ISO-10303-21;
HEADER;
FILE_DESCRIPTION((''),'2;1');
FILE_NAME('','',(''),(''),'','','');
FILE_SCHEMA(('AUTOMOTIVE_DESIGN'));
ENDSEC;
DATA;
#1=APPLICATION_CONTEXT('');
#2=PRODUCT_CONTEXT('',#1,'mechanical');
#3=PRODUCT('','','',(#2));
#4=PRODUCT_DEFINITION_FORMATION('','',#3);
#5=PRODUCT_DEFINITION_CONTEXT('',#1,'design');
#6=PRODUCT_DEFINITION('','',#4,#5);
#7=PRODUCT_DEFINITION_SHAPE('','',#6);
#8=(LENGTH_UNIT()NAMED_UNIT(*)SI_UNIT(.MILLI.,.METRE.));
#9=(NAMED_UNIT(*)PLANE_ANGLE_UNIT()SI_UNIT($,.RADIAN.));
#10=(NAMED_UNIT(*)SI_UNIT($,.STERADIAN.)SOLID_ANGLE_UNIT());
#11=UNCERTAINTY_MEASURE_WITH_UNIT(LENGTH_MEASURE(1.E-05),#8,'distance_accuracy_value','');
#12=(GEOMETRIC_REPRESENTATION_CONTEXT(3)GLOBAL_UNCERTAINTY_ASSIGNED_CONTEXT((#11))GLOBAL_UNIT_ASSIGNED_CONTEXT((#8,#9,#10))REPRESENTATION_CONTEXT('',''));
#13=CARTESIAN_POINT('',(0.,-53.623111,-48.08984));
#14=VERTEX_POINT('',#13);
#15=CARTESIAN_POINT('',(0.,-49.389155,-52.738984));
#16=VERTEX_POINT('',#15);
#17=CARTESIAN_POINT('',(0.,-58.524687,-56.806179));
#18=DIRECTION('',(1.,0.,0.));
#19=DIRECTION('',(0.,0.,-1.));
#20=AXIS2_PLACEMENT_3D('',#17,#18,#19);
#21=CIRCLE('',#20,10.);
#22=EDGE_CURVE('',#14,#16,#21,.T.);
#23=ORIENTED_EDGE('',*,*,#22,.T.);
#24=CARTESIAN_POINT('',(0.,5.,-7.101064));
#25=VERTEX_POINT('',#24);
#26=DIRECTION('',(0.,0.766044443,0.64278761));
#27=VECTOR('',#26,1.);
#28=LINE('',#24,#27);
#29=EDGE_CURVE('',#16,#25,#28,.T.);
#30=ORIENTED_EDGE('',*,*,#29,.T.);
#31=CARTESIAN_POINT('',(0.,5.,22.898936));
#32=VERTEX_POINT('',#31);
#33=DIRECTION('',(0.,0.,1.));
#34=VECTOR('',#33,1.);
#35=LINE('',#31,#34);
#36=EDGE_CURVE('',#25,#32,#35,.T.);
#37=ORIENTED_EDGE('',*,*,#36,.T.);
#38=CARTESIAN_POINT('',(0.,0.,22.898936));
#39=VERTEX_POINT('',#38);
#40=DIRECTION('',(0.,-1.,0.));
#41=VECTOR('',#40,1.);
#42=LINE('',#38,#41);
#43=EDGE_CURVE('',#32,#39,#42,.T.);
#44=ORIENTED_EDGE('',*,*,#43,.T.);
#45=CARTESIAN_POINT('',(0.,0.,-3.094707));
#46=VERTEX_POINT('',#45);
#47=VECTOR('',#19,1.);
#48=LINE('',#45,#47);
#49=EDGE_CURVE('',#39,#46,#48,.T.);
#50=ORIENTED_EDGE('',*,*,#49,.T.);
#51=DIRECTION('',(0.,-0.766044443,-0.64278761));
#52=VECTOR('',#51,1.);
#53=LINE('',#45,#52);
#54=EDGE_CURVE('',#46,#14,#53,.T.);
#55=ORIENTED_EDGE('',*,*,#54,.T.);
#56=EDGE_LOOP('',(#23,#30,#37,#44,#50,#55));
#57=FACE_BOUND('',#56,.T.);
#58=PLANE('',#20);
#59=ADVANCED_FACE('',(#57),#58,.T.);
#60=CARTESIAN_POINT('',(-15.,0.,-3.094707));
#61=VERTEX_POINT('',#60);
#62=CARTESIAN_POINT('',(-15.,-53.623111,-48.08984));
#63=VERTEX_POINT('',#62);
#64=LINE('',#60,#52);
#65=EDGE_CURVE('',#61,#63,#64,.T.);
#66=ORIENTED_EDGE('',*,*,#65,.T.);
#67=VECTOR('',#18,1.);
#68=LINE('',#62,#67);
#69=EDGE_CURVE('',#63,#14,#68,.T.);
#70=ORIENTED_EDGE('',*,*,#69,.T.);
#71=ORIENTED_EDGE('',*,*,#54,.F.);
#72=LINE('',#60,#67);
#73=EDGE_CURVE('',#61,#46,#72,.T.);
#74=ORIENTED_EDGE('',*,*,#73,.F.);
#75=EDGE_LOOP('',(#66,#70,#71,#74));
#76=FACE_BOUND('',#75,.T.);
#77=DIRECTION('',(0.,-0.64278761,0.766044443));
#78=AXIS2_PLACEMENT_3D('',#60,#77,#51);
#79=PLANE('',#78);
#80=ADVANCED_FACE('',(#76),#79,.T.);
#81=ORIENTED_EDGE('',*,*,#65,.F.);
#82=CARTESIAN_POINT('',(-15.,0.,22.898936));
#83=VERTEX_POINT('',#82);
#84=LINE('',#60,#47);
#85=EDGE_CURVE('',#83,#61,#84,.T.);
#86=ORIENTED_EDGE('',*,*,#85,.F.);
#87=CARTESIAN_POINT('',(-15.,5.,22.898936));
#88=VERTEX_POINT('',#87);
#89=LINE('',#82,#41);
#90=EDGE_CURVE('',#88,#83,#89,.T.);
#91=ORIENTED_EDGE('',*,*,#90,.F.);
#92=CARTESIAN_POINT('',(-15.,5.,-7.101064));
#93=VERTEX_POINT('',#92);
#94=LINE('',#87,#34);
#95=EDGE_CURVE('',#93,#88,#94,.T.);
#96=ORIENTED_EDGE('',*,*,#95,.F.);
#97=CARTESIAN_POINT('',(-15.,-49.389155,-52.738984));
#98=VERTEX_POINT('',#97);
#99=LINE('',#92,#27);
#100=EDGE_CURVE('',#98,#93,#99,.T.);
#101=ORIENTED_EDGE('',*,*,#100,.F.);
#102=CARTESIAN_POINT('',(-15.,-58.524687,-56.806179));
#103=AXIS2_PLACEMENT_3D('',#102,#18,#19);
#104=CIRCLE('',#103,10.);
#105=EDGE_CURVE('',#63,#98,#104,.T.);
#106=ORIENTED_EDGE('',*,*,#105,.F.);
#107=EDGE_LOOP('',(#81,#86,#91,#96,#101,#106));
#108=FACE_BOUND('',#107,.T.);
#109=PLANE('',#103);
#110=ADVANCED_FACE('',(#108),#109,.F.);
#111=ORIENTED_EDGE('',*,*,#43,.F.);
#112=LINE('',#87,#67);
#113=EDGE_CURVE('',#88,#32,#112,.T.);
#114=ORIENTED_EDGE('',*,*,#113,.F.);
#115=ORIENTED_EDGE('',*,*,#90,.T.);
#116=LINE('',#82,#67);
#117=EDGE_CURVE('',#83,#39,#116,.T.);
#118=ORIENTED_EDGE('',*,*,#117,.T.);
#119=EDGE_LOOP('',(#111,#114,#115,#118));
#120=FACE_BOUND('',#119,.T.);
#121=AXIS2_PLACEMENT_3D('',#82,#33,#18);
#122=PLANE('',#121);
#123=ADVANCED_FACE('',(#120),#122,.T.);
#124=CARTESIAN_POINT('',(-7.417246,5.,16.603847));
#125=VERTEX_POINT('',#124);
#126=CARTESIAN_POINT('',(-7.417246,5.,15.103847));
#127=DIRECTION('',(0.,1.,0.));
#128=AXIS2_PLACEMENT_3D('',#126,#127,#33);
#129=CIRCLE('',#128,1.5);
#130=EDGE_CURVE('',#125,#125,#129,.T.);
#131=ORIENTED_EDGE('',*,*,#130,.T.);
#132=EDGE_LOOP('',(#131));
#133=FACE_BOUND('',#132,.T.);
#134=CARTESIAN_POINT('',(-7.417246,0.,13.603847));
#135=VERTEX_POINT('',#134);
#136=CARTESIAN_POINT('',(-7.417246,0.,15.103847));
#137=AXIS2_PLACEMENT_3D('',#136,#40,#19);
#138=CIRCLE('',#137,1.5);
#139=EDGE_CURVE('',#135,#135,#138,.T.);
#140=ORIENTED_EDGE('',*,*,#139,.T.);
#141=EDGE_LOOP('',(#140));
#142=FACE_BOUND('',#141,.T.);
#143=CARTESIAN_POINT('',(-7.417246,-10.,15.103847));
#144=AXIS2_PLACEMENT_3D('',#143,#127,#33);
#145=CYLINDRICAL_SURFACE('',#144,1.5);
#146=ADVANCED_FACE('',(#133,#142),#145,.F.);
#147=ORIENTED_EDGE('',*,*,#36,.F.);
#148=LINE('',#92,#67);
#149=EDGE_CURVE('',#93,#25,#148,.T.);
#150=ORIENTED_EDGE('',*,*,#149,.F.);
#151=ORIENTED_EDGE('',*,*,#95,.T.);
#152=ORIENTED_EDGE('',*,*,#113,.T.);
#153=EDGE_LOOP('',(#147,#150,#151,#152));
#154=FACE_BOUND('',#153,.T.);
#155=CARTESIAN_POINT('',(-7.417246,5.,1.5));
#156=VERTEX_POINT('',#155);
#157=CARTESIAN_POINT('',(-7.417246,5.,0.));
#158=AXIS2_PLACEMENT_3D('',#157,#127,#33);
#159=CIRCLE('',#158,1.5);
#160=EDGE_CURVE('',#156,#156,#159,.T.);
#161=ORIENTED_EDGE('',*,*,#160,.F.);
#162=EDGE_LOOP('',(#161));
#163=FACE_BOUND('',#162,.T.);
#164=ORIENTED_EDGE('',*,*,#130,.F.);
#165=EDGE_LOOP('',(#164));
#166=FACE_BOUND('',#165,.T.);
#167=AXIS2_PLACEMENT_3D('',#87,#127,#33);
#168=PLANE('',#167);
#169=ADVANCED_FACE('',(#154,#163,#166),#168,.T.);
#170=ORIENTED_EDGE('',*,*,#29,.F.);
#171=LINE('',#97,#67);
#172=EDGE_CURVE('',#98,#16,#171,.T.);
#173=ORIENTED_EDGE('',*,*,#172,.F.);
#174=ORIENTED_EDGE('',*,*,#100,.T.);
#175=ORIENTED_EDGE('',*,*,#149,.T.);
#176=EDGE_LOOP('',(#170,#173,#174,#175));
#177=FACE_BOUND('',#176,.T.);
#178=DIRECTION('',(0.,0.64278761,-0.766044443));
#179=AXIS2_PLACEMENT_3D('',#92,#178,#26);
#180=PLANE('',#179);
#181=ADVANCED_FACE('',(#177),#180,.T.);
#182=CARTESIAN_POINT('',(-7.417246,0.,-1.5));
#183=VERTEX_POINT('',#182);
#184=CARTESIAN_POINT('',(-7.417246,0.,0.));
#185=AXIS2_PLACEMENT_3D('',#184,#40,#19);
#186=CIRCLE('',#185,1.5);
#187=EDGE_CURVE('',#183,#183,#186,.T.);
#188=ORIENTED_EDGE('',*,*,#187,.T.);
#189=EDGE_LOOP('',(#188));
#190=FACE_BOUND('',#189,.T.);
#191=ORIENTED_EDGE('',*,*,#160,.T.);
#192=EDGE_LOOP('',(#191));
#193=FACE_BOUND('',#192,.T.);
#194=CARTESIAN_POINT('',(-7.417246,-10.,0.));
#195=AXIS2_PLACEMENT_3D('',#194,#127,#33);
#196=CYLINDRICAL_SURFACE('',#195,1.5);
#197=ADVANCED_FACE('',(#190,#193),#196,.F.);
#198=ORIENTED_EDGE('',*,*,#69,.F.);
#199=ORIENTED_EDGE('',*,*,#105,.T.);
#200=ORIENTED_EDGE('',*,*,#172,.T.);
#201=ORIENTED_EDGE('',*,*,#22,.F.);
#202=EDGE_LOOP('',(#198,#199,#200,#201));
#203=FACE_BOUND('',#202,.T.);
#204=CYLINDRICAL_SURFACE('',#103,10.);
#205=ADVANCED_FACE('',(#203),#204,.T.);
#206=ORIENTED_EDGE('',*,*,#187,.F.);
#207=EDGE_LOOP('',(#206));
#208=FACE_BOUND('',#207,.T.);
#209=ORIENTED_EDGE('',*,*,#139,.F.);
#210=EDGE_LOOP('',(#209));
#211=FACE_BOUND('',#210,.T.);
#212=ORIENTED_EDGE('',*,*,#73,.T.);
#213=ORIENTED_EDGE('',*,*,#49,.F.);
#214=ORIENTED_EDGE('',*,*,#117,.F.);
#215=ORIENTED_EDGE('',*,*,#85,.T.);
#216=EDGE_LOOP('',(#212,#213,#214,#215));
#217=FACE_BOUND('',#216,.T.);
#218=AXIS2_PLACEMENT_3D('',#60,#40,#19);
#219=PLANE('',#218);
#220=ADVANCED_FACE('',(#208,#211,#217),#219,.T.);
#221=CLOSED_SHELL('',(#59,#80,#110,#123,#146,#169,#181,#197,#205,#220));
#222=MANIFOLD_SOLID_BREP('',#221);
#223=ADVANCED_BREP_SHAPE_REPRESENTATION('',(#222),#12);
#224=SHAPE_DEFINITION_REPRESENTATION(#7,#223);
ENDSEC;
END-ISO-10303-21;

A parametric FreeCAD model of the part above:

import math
import FreeCAD as App
import Part
import Sketcher

V = App.Vector
Q = App.Units.Quantity

doc = App.newDocument("Part")
body = doc.addObject("PartDesign::Body", "Body")

sketch1 = body.newObject("Sketcher::SketchObject", "Sketch")
sketch1.AttachmentSupport = (doc.getObject("YZ_Plane"), [""])
sketch1.MapMode = "FlatFace"
sketch1.addGeometry(Part.LineSegment(V(5, -7, 0), V(5, 23, 0)), False)
sketch1.addGeometry(Part.LineSegment(V(5, 23, 0), V(0, 23, 0)), False)
sketch1.addGeometry(Part.LineSegment(V(0, 23, 0), V(0, -3, 0)), False)
sketch1.addGeometry(Part.LineSegment(V(0, -3, 0), V(-54, -48, 0)), False)
sketch1.addGeometry(Part.ArcOfCircle(Part.Circle(V(-59, -57, 0), V(0, 0, 1), 10), math.radians(61), math.radians(384)), False)
sketch1.addGeometry(Part.LineSegment(V(-49, -53, 0), V(5, -7, 0)), False)
sketch1.addConstraint(Sketcher.Constraint("Coincident", 0, 2, 1, 1))
sketch1.addConstraint(Sketcher.Constraint("Coincident", 1, 2, 2, 1))
sketch1.addConstraint(Sketcher.Constraint("Coincident", 2, 2, 3, 1))
sketch1.addConstraint(Sketcher.Constraint("Coincident", 3, 2, 4, 1))
sketch1.addConstraint(Sketcher.Constraint("Coincident", 4, 2, 5, 1))
sketch1.addConstraint(Sketcher.Constraint("Coincident", 5, 2, 0, 1))
sketch1.addConstraint(Sketcher.Constraint("Vertical", 0))
sketch1.addConstraint(Sketcher.Constraint("Horizontal", 1))
sketch1.addConstraint(Sketcher.Constraint("Vertical", 2))
sketch1.addConstraint(Sketcher.Constraint("PointOnObject", 1, 2, -2))
sketch1.addConstraint(Sketcher.Constraint("Parallel", 3, 5))
sketch1.addConstraint(Sketcher.Constraint("Radius", 4, 10.0))
sketch1.addConstraint(Sketcher.Constraint("DistanceX", 1, 2, 1, 1, 5.0))
sketch1.addConstraint(Sketcher.Constraint("DistanceY", 0, 1, 0, 2, 30.0))
sketch1.addConstraint(Sketcher.Constraint("Angle", 3, Q("-140 deg")))
sketch1.addConstraint(Sketcher.Constraint("Distance", 3, 70.0))
sketch1.addConstraint(Sketcher.Constraint("Distance", 5, 71.0))
sketch1.addConstraint(Sketcher.Constraint("DistanceY", 2, 2, 2, 1, 25.993644))
sketch1.addConstraint(Sketcher.Constraint("DistanceY", 4, 3, -1, 1, 56.806179))
pad1 = body.newObject("PartDesign::Pad", "Pad")
pad1.Profile = sketch1
pad1.Length = 15
pad1.Reversed = True

sketch2 = body.newObject("Sketcher::SketchObject", "Sketch001")
sketch2.AttachmentSupport = (doc.getObject("XZ_Plane"), [""])
sketch2.MapMode = "FlatFace"
sketch2.AttachmentOffset = App.Placement(V(0, 0, -5), App.Rotation())
sketch2.addGeometry(Part.Circle(V(-7.4, 0, 0), V(0, 0, 1), 1.5), False)
sketch2.addGeometry(Part.Circle(V(-7.4, 15.1, 0), V(0, 0, 1), 1.5), False)
sketch2.addConstraint(Sketcher.Constraint("Equal", 0, 1))
sketch2.addConstraint(Sketcher.Constraint("PointOnObject", 0, 3, -1))
sketch2.addConstraint(Sketcher.Constraint("Vertical", 0, 3, 1, 3))
sketch2.addConstraint(Sketcher.Constraint("Diameter", 0, 3.0))
sketch2.addConstraint(Sketcher.Constraint("DistanceX", 0, 3, -1, 1, 7.417246))
sketch2.addConstraint(Sketcher.Constraint("DistanceY", -1, 1, 1, 3, 15.103847))
pocket1 = body.newObject("PartDesign::Pocket", "Pocket")
pocket1.Profile = sketch2
pocket1.Length = 15
pocket1.Reversed = True

doc.recompute()
